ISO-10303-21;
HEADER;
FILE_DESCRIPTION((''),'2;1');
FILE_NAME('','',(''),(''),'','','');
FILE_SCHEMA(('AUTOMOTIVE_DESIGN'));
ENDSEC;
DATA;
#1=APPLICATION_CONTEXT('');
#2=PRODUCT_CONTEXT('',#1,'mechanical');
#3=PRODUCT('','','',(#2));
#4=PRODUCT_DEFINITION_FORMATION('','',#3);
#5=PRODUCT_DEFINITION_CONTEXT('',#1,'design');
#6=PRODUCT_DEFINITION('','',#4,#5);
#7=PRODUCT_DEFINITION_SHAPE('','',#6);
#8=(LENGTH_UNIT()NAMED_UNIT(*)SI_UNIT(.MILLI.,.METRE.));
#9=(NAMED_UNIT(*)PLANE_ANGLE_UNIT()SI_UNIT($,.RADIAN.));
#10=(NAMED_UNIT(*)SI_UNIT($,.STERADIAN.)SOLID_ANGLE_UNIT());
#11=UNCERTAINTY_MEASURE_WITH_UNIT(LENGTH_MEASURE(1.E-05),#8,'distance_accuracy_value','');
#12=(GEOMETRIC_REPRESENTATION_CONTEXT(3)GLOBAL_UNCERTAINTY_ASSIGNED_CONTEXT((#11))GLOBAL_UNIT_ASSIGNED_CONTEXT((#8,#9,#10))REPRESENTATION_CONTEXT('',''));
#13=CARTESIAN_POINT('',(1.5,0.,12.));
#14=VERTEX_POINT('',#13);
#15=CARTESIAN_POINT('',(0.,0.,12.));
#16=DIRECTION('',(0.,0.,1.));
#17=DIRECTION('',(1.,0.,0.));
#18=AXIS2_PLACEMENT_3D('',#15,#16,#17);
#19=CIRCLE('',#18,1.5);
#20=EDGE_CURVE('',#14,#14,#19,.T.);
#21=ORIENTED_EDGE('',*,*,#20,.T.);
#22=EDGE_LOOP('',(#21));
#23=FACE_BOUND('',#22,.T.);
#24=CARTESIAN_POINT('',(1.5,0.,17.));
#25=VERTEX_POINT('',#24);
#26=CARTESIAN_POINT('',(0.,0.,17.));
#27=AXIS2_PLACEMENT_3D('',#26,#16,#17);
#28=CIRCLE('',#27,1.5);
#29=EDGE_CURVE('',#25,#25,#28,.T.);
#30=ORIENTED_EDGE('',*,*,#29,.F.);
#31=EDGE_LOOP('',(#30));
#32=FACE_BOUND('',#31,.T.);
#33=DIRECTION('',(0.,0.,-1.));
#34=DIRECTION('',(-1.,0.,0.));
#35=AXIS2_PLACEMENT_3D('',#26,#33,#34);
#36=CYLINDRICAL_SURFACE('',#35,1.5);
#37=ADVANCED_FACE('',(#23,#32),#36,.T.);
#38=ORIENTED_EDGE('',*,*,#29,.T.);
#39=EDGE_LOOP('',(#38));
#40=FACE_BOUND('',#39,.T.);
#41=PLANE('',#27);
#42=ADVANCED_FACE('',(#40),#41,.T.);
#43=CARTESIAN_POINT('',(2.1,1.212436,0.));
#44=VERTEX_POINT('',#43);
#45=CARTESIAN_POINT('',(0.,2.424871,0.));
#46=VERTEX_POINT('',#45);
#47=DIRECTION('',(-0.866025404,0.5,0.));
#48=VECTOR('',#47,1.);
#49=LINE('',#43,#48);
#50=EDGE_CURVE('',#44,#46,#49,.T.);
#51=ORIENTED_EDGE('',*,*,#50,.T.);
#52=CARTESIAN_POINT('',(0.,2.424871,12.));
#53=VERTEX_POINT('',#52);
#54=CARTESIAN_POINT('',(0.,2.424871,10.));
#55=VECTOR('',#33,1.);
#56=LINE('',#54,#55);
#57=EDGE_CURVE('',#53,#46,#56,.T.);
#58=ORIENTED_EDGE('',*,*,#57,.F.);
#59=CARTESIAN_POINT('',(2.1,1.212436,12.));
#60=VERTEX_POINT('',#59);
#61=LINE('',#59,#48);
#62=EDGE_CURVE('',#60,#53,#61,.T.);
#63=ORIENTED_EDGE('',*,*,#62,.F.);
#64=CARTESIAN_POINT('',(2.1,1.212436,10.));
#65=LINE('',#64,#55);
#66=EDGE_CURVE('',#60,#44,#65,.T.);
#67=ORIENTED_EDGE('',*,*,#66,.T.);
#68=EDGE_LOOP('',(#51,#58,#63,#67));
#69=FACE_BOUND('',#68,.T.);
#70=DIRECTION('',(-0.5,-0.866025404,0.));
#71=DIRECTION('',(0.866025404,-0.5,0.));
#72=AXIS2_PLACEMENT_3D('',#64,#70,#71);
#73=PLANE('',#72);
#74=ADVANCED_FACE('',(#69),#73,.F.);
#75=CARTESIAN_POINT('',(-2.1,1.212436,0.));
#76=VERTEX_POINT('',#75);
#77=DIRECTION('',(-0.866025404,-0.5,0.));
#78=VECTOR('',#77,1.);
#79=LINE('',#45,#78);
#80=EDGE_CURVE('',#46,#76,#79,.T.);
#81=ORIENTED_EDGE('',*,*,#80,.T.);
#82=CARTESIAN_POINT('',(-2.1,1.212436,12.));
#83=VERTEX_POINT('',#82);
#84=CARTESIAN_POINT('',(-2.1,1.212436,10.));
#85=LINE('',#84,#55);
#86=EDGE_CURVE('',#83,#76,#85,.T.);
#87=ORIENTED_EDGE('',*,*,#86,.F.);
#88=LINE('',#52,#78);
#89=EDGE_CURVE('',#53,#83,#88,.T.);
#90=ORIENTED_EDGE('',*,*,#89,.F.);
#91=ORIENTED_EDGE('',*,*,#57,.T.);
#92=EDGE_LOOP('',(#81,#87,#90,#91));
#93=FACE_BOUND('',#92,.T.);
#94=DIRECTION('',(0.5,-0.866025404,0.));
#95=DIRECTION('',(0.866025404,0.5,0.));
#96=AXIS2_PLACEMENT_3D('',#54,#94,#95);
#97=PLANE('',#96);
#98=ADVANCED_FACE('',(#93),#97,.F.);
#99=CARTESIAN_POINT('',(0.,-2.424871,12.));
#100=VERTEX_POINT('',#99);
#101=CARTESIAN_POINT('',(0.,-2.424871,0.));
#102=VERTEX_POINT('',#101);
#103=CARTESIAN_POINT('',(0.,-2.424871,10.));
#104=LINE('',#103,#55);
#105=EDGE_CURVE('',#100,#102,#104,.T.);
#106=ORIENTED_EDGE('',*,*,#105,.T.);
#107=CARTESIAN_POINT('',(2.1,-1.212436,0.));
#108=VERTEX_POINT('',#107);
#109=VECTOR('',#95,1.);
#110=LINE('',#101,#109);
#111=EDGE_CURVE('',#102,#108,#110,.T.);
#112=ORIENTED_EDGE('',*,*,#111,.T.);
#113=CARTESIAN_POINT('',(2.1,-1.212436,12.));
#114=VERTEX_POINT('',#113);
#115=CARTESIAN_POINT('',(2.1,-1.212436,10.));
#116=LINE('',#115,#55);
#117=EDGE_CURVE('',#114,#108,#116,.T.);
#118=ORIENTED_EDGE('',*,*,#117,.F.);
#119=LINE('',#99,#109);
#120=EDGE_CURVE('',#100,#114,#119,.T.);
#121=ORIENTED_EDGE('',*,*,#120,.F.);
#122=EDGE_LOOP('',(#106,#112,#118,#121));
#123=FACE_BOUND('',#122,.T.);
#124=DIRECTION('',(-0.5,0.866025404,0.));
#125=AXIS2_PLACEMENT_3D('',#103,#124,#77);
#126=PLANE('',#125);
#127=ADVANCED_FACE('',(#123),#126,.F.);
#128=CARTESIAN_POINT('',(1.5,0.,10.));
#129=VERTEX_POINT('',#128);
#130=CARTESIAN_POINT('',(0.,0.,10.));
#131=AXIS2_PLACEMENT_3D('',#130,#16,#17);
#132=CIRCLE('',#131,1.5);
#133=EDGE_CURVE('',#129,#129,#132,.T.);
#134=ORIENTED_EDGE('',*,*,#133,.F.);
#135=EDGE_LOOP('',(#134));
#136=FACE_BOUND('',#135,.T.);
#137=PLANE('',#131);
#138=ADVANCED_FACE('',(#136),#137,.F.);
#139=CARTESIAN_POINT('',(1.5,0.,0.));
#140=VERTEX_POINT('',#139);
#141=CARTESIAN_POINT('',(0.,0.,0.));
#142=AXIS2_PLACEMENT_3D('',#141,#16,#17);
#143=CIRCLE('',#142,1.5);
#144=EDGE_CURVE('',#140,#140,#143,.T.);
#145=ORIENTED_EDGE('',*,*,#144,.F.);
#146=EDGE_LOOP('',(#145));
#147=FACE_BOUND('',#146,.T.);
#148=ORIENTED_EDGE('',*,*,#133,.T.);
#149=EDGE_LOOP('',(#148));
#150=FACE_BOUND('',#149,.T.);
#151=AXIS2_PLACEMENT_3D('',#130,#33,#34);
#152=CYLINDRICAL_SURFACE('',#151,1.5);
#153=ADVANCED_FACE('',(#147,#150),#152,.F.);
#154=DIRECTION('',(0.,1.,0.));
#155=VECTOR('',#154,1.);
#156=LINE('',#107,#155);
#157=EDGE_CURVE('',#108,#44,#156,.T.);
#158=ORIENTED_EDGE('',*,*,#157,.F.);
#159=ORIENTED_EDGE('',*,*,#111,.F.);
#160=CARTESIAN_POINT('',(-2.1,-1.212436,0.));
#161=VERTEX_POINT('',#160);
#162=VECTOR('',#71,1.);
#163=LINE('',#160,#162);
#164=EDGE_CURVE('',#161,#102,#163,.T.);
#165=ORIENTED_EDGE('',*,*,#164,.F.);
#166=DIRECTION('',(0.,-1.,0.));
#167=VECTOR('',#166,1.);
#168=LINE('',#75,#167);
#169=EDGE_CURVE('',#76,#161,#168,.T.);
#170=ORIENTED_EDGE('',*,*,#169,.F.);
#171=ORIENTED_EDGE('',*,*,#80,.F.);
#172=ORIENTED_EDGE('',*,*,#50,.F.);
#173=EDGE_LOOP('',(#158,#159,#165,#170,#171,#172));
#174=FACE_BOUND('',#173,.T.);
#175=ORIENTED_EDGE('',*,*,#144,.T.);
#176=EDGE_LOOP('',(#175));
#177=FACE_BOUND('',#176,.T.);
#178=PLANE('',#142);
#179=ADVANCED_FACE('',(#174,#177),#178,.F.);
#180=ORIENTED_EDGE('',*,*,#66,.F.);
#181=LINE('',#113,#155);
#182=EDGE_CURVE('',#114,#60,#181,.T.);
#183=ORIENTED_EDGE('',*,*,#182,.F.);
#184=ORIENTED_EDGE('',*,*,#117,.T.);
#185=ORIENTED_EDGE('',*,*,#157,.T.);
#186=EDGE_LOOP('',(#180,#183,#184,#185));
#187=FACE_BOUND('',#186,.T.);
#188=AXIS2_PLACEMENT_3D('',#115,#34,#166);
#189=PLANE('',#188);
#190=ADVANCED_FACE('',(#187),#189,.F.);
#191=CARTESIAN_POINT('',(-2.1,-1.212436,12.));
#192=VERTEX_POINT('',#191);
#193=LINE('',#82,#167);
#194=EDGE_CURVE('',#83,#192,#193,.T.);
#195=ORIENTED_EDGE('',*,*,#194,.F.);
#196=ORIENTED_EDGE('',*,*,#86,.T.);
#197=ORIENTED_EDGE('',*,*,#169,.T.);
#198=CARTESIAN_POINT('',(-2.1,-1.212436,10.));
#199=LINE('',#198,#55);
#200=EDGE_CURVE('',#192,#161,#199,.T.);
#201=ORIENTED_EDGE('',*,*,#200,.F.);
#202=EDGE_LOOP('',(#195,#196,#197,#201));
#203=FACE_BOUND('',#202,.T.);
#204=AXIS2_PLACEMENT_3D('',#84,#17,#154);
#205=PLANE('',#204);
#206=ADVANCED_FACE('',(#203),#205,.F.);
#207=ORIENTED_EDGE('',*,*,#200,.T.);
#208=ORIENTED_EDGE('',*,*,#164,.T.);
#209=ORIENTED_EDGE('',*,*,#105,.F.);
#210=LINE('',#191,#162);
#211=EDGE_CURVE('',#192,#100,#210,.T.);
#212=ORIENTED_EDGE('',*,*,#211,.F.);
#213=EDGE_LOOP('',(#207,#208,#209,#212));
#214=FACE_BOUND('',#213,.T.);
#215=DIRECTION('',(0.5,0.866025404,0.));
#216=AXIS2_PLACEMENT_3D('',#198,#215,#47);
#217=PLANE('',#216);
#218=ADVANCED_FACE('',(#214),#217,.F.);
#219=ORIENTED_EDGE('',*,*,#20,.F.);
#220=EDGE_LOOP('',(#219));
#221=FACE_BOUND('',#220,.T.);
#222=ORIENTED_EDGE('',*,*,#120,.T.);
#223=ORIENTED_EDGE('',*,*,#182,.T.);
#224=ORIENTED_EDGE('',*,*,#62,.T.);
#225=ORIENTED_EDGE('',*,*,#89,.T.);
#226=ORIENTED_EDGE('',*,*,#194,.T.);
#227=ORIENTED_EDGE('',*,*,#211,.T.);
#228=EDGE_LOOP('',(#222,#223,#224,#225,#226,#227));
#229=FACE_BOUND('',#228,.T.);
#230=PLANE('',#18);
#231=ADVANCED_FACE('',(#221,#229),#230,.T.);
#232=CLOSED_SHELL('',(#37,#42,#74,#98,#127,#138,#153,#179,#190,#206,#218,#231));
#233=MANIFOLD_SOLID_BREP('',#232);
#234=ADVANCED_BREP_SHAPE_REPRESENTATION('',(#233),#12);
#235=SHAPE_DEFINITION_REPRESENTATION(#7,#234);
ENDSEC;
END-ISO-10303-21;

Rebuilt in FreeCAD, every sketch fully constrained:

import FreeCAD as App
import Part
import Sketcher

V = App.Vector
Q = App.Units.Quantity


def add_polygon(sketch, points):
    """Adds a closed chain of lines whose ends are joined by coincident constraints."""
    first, n = sketch.GeometryCount, len(points)
    for a, b in zip(points, points[1:] + points[:1]):
        sketch.addGeometry(Part.LineSegment(App.Vector(*a, 0), App.Vector(*b, 0)), False)
    for i in range(n):
        sketch.addConstraint(Sketcher.Constraint("Coincident", first + i, 2, first + (i + 1) % n, 1))

doc = App.newDocument("Part")
body = doc.addObject("PartDesign::Body", "Body")

# Sketch on XY plane
sketch1 = body.newObject("Sketcher::SketchObject", "Sketch")
sketch1.AttachmentSupport = (doc.getObject("XY_Plane"), [""])
sketch1.MapMode = "FlatFace"
add_polygon(sketch1, [(0, 2.4), (-2.1, 1.2), (-2.1, -1.2), (0, -2.4), (2.1, -1.2), (2.1, 1.2)])  # lines 0-5
sketch1.addGeometry(Part.Circle(V(0, 0, 0), V(0, 0, 1), 1.5), False)  # 6
sketch1.addConstraint([
    Sketcher.Constraint("Vertical", 1),
    Sketcher.Constraint("Vertical", 4),
    Sketcher.Constraint("Coincident", 6, 3, -1, 1),
    Sketcher.Constraint("Symmetric", 0, 2, 3, 2, -1, 1),
    Sketcher.Constraint("Symmetric", 2, 2, 5, 2, -1, 1),
    Sketcher.Constraint("PointOnObject", 2, 2, -2),
    Sketcher.Constraint("Parallel", 2, 5),
    Sketcher.Constraint("Horizontal", 1, 2, 3, 2),
    Sketcher.Constraint("Diameter", 6, 3.0),
    Sketcher.Constraint("Angle", 0, Q("-150 deg")),
    Sketcher.Constraint("DistanceX", 0, 2, -1, 1, 2.1),
    Sketcher.Constraint("DistanceY", 1, 2, 1, 1, 2.424871),
])
pad1 = body.newObject("PartDesign::Pad", "Pad")
pad1.Profile = sketch1
pad1.Length = 10

# Sketch on XY plane
sketch2 = body.newObject("Sketcher::SketchObject", "Sketch001")
sketch2.AttachmentSupport = (doc.getObject("XY_Plane"), [""])
sketch2.MapMode = "FlatFace"
sketch2.AttachmentOffset = App.Placement(V(0, 0, 10), App.Rotation())
add_polygon(sketch2, [(2.1, 1.2), (0, 2.4), (-2.1, 1.2), (-2.1, -1.2), (0, -2.4), (2.1, -1.2)])  # lines 0-5
sketch2.addConstraint([
    Sketcher.Constraint("Vertical", 2),
    Sketcher.Constraint("Vertical", 5),
    Sketcher.Constraint("Symmetric", 0, 2, 3, 2, -1, 1),
    Sketcher.Constraint("Symmetric", 1, 2, 4, 2, -1, 1),
    Sketcher.Constraint("PointOnObject", 0, 2, -2),
    Sketcher.Constraint("Parallel", 0, 3),
    Sketcher.Constraint("Horizontal", 2, 2, 4, 2),
    Sketcher.Constraint("Angle", 0, Q("150 deg")),
    Sketcher.Constraint("DistanceX", 1, 2, -1, 1, 2.1),
    Sketcher.Constraint("DistanceY", 2, 2, 2, 1, 2.424871),
])
pad2 = body.newObject("PartDesign::Pad", "Pad001")
pad2.Profile = sketch2
pad2.Length = 2

# Sketch on XY plane
sketch3 = body.newObject("Sketcher::SketchObject", "Sketch002")
sketch3.AttachmentSupport = (doc.getObject("XY_Plane"), [""])
sketch3.MapMode = "FlatFace"
sketch3.AttachmentOffset = App.Placement(V(0, 0, 12), App.Rotation())
sketch3.addGeometry(Part.Circle(V(0, 0, 0), V(0, 0, 1), 1.5), False)
sketch3.addConstraint([
    Sketcher.Constraint("Coincident", 0, 3, -1, 1),
    Sketcher.Constraint("Diameter", 0, 3.0),
])
pad3 = body.newObject("PartDesign::Pad", "Pad002")
pad3.Profile = sketch3
pad3.Length = 5

doc.recompute()
